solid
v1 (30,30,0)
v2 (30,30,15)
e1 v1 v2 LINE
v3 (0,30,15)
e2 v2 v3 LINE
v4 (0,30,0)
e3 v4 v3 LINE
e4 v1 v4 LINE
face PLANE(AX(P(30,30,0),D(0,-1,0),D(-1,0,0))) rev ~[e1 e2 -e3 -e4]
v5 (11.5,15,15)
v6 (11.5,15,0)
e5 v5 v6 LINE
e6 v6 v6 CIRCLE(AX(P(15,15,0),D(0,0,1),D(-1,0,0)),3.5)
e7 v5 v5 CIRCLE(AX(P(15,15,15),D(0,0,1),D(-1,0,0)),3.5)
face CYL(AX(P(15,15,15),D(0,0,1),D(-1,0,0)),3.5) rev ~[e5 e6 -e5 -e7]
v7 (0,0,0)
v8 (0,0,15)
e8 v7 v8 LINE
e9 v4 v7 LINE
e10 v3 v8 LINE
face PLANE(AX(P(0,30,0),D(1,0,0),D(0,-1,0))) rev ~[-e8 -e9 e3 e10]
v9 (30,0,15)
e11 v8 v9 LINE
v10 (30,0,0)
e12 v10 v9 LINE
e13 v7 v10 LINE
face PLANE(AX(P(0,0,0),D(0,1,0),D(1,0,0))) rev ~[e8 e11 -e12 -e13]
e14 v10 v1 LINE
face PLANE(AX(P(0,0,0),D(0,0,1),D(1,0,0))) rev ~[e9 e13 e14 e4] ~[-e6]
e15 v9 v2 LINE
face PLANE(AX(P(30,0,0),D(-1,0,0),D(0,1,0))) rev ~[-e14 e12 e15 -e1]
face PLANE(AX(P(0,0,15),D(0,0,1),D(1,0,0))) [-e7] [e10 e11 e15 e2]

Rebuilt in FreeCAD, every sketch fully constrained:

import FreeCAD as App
import Part
import Sketcher

V = App.Vector

doc = App.newDocument("Part")
params = doc.addObject("Spreadsheet::Sheet", "Params")
for row, (alias, value) in enumerate([
    ("sketch1_width", "30 mm"),
    ("pad1_length", "15 mm"),
    ("sketch2_diameter", "7 mm"),
    ("pocket1_length", "15 mm"),
], start=1):
    params.set(f"A{row}", alias)
    params.set(f"B{row}", "=" + value)
    params.setAlias(f"B{row}", alias)

body = doc.addObject("PartDesign::Body", "Body")

# Sketch on XY plane
sketch1 = body.newObject("Sketcher::SketchObject", "Sketch")
sketch1.AttachmentSupport = (doc.getObject("XY_Plane"), [""])
sketch1.MapMode = "FlatFace"
sketch1.addGeometry([
    Part.LineSegment(V(0, 30, 0), V(0, 0, 0)),
    Part.LineSegment(V(0, 0, 0), V(30, 0, 0)),
    Part.LineSegment(V(30, 0, 0), V(30, 30, 0)),
    Part.LineSegment(V(30, 30, 0), V(0, 30, 0)),
], False)
sketch1.addConstraint([
    Sketcher.Constraint("Coincident", 0, 2, 1, 1),
    Sketcher.Constraint("Coincident", 1, 2, 2, 1),
    Sketcher.Constraint("Coincident", 2, 2, 3, 1),
    Sketcher.Constraint("Coincident", 3, 2, 0, 1),
    Sketcher.Constraint("Vertical", 0),
    Sketcher.Constraint("Horizontal", 1),
    Sketcher.Constraint("Vertical", 2),
    Sketcher.Constraint("Horizontal", 3),
    Sketcher.Constraint("Coincident", 0, 2, -1, 1),
    Sketcher.Constraint("Equal", 3, 0),
    Sketcher.Constraint("DistanceX", 1, 1, 1, 2, 30.0),
])
sketch1.setExpression("Constraints[10]", "Params.sketch1_width")
pad1 = body.newObject("PartDesign::Pad", "Pad")
pad1.Profile = sketch1
pad1.setExpression("Length", "Params.pad1_length")

# Sketch on XY plane
sketch2 = body.newObject("Sketcher::SketchObject", "Sketch001")
sketch2.AttachmentSupport = (doc.getObject("XY_Plane"), [""])
sketch2.MapMode = "FlatFace"
sketch2.AttachmentOffset = App.Placement(V(0, 0, 15), App.Rotation())
sketch2.addGeometry(Part.Circle(V(15, 15, 0), V(0, 0, 1), 3.5), False)
sketch2.addConstraint([
    Sketcher.Constraint("Diameter", 0, 7.0),
    Sketcher.Constraint("DistanceX", -1, 1, 0, 3, 15.0),
    Sketcher.Constraint("DistanceY", -1, 1, 0, 3, 15.0),
])
sketch2.setExpression("Constraints[0]", "Params.sketch2_diameter")
pocket1 = body.newObject("PartDesign::Pocket", "Pocket")
pocket1.Profile = sketch2
pocket1.setExpression("Length", "Params.pocket1_length")

doc.recompute()
